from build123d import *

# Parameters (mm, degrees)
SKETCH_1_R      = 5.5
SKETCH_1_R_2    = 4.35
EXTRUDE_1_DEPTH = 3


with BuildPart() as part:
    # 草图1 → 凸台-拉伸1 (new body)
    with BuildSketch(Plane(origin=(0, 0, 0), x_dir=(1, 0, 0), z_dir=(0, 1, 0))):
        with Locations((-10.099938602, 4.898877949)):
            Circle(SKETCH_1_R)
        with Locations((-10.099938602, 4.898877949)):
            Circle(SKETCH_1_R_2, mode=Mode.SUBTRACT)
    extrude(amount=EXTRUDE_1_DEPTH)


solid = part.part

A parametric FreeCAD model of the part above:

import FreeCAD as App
import Part
import Sketcher
Q = App.Units.Quantity

doc = App.newDocument("Part")
body = doc.addObject("PartDesign::Body", "Body")

# Sketch on XZ plane
sketch1 = doc.addObject("Sketcher::SketchObject", "Sketch")
body.addObject(sketch1)
sketch1.AttachmentSupport = (doc.XZ_Plane, [""])
sketch1.MapMode = "FlatFace"
sketch1.addGeometry([
    Part.Circle(App.Vector(-10.1, -4.9, 0), App.Vector(0, 0, 1), 5.5),
    Part.Circle(App.Vector(-10.1, -4.9, 0), App.Vector(0, 0, 1), 4.3),
], False)
sketch1.addConstraint([
    Sketcher.Constraint("Coincident", 1, 3, 0, 3),
    Sketcher.Constraint("Diameter", 0, Q("11 mm")),
    Sketcher.Constraint("Diameter", 1, Q("8.7 mm")),
    Sketcher.Constraint("DistanceX", 0, 3, -1, 1, Q("10.099939 mm")),
    Sketcher.Constraint("DistanceY", 0, 3, -1, 1, Q("4.898878 mm")),
])
pad1 = doc.addObject("PartDesign::Pad", "Pad")
body.addObject(pad1)
pad1.Profile = sketch1
pad1.Length = 3
pad1.Reversed = True

doc.recompute()
